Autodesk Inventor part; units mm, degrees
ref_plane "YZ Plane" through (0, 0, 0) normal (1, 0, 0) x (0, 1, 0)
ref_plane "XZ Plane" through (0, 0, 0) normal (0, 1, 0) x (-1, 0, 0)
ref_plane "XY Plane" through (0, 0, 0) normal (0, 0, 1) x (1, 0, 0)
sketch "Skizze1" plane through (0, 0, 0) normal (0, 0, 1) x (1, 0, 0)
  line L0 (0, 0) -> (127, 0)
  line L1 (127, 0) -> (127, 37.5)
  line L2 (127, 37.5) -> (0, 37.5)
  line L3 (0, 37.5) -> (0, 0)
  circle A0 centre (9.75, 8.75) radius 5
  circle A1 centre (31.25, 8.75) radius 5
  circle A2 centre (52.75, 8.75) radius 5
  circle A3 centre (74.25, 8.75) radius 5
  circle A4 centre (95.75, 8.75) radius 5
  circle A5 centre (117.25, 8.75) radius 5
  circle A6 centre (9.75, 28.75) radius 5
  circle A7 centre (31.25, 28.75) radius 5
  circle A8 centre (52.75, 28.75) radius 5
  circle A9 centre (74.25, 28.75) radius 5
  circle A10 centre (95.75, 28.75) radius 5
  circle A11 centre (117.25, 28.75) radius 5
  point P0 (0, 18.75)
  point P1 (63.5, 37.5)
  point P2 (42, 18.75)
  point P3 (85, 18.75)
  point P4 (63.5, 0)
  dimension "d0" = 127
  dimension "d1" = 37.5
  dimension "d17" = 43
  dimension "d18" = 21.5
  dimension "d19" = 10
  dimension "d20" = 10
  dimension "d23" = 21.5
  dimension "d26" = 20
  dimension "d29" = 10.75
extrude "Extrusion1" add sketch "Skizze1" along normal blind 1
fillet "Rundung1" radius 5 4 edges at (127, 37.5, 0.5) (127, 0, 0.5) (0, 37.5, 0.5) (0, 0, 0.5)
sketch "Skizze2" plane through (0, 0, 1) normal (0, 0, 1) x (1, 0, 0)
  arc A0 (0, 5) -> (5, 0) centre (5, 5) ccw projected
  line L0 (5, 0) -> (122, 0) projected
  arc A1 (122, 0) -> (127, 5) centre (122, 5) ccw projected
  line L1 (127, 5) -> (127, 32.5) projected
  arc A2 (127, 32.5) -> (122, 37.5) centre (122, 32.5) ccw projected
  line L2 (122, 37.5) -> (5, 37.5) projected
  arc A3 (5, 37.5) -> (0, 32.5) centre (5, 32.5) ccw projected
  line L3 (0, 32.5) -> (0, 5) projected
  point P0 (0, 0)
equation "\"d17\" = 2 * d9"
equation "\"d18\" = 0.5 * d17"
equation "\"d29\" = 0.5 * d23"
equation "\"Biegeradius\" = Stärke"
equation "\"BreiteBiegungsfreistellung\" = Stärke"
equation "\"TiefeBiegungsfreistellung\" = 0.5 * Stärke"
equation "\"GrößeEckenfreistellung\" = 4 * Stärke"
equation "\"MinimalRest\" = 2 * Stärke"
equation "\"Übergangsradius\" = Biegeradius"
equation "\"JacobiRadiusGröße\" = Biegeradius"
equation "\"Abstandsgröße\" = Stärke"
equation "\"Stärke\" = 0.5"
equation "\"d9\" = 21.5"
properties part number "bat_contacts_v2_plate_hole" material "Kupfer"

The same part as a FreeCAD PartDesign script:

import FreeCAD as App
import Part
import Sketcher

V = App.Vector
Q = App.Units.Quantity


def edges_at(feature, points):
    """Names of the edges that pass closest to the given points."""
    edges = feature.Shape.Edges
    near = lambda p: min(range(len(edges)), key=lambda i: edges[i].distToShape(Part.Vertex(*p))[0])
    return sorted({f"Edge{near(p) + 1}" for p in points})

doc = App.newDocument("Part")
params = doc.addObject("Spreadsheet::Sheet", "Params")
for row, (alias, value) in enumerate([
    ("sketch1_diameter", "10 mm"),
    ("sketch1_width", "127 mm"),
    ("sketch1_height", "37.5 mm"),
    ("pad1_length", "1 mm"),
    ("fillet_radius", "5 mm"),
], start=1):
    params.set(f"A{row}", alias)
    params.set(f"B{row}", "=" + value)
    params.setAlias(f"B{row}", alias)

body = doc.addObject("PartDesign::Body", "Body")

# Sketch on XY plane
sketch1 = body.newObject("Sketcher::SketchObject", "Sketch")
sketch1.AttachmentSupport = (doc.getObject("XY_Plane"), [""])
sketch1.MapMode = "FlatFace"
sketch1.addGeometry([
    Part.LineSegment(V(0, 38, 0), V(0, 0, 0)),  # 0
    Part.LineSegment(V(0, 0, 0), V(127, 0, 0)),  # 1
    Part.LineSegment(V(127, 0, 0), V(127, 38, 0)),  # 2
    Part.LineSegment(V(127, 38, 0), V(0, 38, 0)),  # 3
    Part.Circle(V(10, 9, 0), V(0, 0, 1), 5),  # 4
    Part.Circle(V(31, 9, 0), V(0, 0, 1), 5),  # 5
    Part.Circle(V(53, 9, 0), V(0, 0, 1), 5),  # 6
    Part.Circle(V(74, 9, 0), V(0, 0, 1), 5),  # 7
    Part.Circle(V(96, 9, 0), V(0, 0, 1), 5),  # 8
    Part.Circle(V(117, 9, 0), V(0, 0, 1), 5),  # 9
    Part.Circle(V(10, 29, 0), V(0, 0, 1), 5),  # 10
    Part.Circle(V(31, 29, 0), V(0, 0, 1), 5),  # 11
    Part.Circle(V(53, 29, 0), V(0, 0, 1), 5),  # 12
    Part.Circle(V(74, 29, 0), V(0, 0, 1), 5),  # 13
    Part.Circle(V(96, 29, 0), V(0, 0, 1), 5),  # 14
    Part.Circle(V(117, 29, 0), V(0, 0, 1), 5),  # 15
], False)
sketch1.addConstraint([
    Sketcher.Constraint("Coincident", 0, 2, 1, 1),
    Sketcher.Constraint("Coincident", 1, 2, 2, 1),
    Sketcher.Constraint("Coincident", 2, 2, 3, 1),
    Sketcher.Constraint("Coincident", 3, 2, 0, 1),
    Sketcher.Constraint("Vertical", 0),
    Sketcher.Constraint("Horizontal", 1),
    Sketcher.Constraint("Vertical", 2),
    Sketcher.Constraint("Horizontal", 3),
    Sketcher.Constraint("Coincident", 0, 2, -1, 1),
    Sketcher.Constraint("Equal", 4, 5),
    Sketcher.Constraint("Equal", 5, 6),
    Sketcher.Constraint("Equal", 6, 7),
    Sketcher.Constraint("Equal", 7, 8),
    Sketcher.Constraint("Equal", 8, 9),
    Sketcher.Constraint("Equal", 9, 10),
    Sketcher.Constraint("Equal", 10, 11),
    Sketcher.Constraint("Equal", 11, 12),
    Sketcher.Constraint("Equal", 12, 13),
    Sketcher.Constraint("Equal", 13, 14),
    Sketcher.Constraint("Equal", 14, 15),
    Sketcher.Constraint("Horizontal", 4, 3, 5, 3),
    Sketcher.Constraint("Horizontal", 5, 3, 6, 3),
    Sketcher.Constraint("Horizontal", 6, 3, 7, 3),
    Sketcher.Constraint("Horizontal", 7, 3, 8, 3),
    Sketcher.Constraint("Horizontal", 8, 3, 9, 3),
    Sketcher.Constraint("Horizontal", 10, 3, 11, 3),
    Sketcher.Constraint("Horizontal", 11, 3, 12, 3),
    Sketcher.Constraint("Horizontal", 12, 3, 13, 3),
    Sketcher.Constraint("Horizontal", 13, 3, 14, 3),
    Sketcher.Constraint("Horizontal", 14, 3, 15, 3),
    Sketcher.Constraint("Vertical", 4, 3, 10, 3),
    Sketcher.Constraint("Vertical", 5, 3, 11, 3),
    Sketcher.Constraint("Vertical", 6, 3, 12, 3),
    Sketcher.Constraint("Vertical", 7, 3, 13, 3),
    Sketcher.Constraint("Vertical", 8, 3, 14, 3),
    Sketcher.Constraint("Vertical", 9, 3, 15, 3),
    Sketcher.Constraint("Diameter", 4, Q("10 mm")),
    Sketcher.Constraint("DistanceX", 1, 1, 1, 2, Q("127 mm")),
    Sketcher.Constraint("DistanceY", 0, 2, 0, 1, Q("37.5 mm")),
    Sketcher.Constraint("DistanceX", 4, 3, 6, 3, Q("43 mm")),
    Sketcher.Constraint("DistanceX", 5, 3, 7, 3, Q("43 mm")),
    Sketcher.Constraint("DistanceX", 6, 3, 8, 3, Q("43 mm")),
    Sketcher.Constraint("DistanceX", 7, 3, 9, 3, Q("43 mm")),
    Sketcher.Constraint("DistanceY", 4, 3, 10, 3, Q("20 mm")),
    Sketcher.Constraint("DistanceX", 4, 3, 5, 3, Q("21.5 mm")),
    Sketcher.Constraint("DistanceX", -1, 1, 4, 3, Q("9.75 mm")),
    Sketcher.Constraint("DistanceY", -1, 1, 4, 3, Q("8.75 mm")),
])
sketch1.setExpression("Constraints[36]", "Params.sketch1_diameter")
sketch1.setExpression("Constraints[37]", "Params.sketch1_width")
sketch1.setExpression("Constraints[38]", "Params.sketch1_height")
pad1 = body.newObject("PartDesign::Pad", "Pad")
pad1.Profile = sketch1
pad1.setExpression("Length", "Params.pad1_length")
doc.recompute()

fillet = body.newObject("PartDesign::Fillet", "Fillet")
fillet.Base = (pad1, edges_at(pad1, [
    (127, 37.5, 0.5),
    (127, 0, 0.5),
    (0, 37.5, 0.5),
    (0, 0, 0.5),
]))
fillet.setExpression("Radius", "Params.fillet_radius")

doc.recompute()
